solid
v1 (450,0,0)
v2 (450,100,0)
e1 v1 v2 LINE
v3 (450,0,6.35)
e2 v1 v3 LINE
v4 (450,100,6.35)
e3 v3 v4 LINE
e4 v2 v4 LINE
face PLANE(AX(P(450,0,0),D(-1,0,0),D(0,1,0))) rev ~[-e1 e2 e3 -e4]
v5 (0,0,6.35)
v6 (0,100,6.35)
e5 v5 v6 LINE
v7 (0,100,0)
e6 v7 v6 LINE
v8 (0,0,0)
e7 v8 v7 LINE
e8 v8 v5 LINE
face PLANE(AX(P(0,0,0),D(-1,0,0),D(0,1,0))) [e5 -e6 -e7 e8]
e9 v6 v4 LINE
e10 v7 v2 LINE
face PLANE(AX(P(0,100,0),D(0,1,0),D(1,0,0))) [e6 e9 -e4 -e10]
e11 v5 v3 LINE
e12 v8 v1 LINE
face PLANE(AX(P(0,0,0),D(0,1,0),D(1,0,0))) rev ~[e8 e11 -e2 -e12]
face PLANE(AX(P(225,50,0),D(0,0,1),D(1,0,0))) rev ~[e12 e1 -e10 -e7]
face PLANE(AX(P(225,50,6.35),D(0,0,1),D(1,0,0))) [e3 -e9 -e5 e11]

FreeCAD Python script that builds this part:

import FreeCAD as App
import Part
import Sketcher
Q = App.Units.Quantity


def add_polygon(sketch, points):
    """Adds a closed chain of lines whose ends are joined by coincident constraints."""
    first, n = sketch.GeometryCount, len(points)
    for a, b in zip(points, points[1:] + points[:1]):
        sketch.addGeometry(Part.LineSegment(App.Vector(*a, 0), App.Vector(*b, 0)), False)
    for i in range(n):
        sketch.addConstraint(Sketcher.Constraint("Coincident", first + i, 2, first + (i + 1) % n, 1))

doc = App.newDocument("Part")
body = doc.addObject("PartDesign::Body", "Body")

# Sketch on XY plane
sketch1 = body.newObject("Sketcher::SketchObject", "Sketch")
sketch1.AttachmentSupport = (doc.getObject("XY_Plane"), [""])
sketch1.MapMode = "FlatFace"
add_polygon(sketch1, [(0, 100), (0, 0), (450, 0), (450, 100)])  # lines 0-3
sketch1.addConstraint([
    Sketcher.Constraint("Vertical", 0),
    Sketcher.Constraint("Horizontal", 1),
    Sketcher.Constraint("Vertical", 2),
    Sketcher.Constraint("Horizontal", 3),
    Sketcher.Constraint("Coincident", 0, 2, -1, 1),
    Sketcher.Constraint("DistanceX", 1, 1, 1, 2, Q("450 mm")),
    Sketcher.Constraint("DistanceY", 0, 2, 0, 1, Q("100 mm")),
])
pad1 = body.newObject("PartDesign::Pad", "Pad")
pad1.Profile = sketch1
pad1.Length = 6.35

doc.recompute()
